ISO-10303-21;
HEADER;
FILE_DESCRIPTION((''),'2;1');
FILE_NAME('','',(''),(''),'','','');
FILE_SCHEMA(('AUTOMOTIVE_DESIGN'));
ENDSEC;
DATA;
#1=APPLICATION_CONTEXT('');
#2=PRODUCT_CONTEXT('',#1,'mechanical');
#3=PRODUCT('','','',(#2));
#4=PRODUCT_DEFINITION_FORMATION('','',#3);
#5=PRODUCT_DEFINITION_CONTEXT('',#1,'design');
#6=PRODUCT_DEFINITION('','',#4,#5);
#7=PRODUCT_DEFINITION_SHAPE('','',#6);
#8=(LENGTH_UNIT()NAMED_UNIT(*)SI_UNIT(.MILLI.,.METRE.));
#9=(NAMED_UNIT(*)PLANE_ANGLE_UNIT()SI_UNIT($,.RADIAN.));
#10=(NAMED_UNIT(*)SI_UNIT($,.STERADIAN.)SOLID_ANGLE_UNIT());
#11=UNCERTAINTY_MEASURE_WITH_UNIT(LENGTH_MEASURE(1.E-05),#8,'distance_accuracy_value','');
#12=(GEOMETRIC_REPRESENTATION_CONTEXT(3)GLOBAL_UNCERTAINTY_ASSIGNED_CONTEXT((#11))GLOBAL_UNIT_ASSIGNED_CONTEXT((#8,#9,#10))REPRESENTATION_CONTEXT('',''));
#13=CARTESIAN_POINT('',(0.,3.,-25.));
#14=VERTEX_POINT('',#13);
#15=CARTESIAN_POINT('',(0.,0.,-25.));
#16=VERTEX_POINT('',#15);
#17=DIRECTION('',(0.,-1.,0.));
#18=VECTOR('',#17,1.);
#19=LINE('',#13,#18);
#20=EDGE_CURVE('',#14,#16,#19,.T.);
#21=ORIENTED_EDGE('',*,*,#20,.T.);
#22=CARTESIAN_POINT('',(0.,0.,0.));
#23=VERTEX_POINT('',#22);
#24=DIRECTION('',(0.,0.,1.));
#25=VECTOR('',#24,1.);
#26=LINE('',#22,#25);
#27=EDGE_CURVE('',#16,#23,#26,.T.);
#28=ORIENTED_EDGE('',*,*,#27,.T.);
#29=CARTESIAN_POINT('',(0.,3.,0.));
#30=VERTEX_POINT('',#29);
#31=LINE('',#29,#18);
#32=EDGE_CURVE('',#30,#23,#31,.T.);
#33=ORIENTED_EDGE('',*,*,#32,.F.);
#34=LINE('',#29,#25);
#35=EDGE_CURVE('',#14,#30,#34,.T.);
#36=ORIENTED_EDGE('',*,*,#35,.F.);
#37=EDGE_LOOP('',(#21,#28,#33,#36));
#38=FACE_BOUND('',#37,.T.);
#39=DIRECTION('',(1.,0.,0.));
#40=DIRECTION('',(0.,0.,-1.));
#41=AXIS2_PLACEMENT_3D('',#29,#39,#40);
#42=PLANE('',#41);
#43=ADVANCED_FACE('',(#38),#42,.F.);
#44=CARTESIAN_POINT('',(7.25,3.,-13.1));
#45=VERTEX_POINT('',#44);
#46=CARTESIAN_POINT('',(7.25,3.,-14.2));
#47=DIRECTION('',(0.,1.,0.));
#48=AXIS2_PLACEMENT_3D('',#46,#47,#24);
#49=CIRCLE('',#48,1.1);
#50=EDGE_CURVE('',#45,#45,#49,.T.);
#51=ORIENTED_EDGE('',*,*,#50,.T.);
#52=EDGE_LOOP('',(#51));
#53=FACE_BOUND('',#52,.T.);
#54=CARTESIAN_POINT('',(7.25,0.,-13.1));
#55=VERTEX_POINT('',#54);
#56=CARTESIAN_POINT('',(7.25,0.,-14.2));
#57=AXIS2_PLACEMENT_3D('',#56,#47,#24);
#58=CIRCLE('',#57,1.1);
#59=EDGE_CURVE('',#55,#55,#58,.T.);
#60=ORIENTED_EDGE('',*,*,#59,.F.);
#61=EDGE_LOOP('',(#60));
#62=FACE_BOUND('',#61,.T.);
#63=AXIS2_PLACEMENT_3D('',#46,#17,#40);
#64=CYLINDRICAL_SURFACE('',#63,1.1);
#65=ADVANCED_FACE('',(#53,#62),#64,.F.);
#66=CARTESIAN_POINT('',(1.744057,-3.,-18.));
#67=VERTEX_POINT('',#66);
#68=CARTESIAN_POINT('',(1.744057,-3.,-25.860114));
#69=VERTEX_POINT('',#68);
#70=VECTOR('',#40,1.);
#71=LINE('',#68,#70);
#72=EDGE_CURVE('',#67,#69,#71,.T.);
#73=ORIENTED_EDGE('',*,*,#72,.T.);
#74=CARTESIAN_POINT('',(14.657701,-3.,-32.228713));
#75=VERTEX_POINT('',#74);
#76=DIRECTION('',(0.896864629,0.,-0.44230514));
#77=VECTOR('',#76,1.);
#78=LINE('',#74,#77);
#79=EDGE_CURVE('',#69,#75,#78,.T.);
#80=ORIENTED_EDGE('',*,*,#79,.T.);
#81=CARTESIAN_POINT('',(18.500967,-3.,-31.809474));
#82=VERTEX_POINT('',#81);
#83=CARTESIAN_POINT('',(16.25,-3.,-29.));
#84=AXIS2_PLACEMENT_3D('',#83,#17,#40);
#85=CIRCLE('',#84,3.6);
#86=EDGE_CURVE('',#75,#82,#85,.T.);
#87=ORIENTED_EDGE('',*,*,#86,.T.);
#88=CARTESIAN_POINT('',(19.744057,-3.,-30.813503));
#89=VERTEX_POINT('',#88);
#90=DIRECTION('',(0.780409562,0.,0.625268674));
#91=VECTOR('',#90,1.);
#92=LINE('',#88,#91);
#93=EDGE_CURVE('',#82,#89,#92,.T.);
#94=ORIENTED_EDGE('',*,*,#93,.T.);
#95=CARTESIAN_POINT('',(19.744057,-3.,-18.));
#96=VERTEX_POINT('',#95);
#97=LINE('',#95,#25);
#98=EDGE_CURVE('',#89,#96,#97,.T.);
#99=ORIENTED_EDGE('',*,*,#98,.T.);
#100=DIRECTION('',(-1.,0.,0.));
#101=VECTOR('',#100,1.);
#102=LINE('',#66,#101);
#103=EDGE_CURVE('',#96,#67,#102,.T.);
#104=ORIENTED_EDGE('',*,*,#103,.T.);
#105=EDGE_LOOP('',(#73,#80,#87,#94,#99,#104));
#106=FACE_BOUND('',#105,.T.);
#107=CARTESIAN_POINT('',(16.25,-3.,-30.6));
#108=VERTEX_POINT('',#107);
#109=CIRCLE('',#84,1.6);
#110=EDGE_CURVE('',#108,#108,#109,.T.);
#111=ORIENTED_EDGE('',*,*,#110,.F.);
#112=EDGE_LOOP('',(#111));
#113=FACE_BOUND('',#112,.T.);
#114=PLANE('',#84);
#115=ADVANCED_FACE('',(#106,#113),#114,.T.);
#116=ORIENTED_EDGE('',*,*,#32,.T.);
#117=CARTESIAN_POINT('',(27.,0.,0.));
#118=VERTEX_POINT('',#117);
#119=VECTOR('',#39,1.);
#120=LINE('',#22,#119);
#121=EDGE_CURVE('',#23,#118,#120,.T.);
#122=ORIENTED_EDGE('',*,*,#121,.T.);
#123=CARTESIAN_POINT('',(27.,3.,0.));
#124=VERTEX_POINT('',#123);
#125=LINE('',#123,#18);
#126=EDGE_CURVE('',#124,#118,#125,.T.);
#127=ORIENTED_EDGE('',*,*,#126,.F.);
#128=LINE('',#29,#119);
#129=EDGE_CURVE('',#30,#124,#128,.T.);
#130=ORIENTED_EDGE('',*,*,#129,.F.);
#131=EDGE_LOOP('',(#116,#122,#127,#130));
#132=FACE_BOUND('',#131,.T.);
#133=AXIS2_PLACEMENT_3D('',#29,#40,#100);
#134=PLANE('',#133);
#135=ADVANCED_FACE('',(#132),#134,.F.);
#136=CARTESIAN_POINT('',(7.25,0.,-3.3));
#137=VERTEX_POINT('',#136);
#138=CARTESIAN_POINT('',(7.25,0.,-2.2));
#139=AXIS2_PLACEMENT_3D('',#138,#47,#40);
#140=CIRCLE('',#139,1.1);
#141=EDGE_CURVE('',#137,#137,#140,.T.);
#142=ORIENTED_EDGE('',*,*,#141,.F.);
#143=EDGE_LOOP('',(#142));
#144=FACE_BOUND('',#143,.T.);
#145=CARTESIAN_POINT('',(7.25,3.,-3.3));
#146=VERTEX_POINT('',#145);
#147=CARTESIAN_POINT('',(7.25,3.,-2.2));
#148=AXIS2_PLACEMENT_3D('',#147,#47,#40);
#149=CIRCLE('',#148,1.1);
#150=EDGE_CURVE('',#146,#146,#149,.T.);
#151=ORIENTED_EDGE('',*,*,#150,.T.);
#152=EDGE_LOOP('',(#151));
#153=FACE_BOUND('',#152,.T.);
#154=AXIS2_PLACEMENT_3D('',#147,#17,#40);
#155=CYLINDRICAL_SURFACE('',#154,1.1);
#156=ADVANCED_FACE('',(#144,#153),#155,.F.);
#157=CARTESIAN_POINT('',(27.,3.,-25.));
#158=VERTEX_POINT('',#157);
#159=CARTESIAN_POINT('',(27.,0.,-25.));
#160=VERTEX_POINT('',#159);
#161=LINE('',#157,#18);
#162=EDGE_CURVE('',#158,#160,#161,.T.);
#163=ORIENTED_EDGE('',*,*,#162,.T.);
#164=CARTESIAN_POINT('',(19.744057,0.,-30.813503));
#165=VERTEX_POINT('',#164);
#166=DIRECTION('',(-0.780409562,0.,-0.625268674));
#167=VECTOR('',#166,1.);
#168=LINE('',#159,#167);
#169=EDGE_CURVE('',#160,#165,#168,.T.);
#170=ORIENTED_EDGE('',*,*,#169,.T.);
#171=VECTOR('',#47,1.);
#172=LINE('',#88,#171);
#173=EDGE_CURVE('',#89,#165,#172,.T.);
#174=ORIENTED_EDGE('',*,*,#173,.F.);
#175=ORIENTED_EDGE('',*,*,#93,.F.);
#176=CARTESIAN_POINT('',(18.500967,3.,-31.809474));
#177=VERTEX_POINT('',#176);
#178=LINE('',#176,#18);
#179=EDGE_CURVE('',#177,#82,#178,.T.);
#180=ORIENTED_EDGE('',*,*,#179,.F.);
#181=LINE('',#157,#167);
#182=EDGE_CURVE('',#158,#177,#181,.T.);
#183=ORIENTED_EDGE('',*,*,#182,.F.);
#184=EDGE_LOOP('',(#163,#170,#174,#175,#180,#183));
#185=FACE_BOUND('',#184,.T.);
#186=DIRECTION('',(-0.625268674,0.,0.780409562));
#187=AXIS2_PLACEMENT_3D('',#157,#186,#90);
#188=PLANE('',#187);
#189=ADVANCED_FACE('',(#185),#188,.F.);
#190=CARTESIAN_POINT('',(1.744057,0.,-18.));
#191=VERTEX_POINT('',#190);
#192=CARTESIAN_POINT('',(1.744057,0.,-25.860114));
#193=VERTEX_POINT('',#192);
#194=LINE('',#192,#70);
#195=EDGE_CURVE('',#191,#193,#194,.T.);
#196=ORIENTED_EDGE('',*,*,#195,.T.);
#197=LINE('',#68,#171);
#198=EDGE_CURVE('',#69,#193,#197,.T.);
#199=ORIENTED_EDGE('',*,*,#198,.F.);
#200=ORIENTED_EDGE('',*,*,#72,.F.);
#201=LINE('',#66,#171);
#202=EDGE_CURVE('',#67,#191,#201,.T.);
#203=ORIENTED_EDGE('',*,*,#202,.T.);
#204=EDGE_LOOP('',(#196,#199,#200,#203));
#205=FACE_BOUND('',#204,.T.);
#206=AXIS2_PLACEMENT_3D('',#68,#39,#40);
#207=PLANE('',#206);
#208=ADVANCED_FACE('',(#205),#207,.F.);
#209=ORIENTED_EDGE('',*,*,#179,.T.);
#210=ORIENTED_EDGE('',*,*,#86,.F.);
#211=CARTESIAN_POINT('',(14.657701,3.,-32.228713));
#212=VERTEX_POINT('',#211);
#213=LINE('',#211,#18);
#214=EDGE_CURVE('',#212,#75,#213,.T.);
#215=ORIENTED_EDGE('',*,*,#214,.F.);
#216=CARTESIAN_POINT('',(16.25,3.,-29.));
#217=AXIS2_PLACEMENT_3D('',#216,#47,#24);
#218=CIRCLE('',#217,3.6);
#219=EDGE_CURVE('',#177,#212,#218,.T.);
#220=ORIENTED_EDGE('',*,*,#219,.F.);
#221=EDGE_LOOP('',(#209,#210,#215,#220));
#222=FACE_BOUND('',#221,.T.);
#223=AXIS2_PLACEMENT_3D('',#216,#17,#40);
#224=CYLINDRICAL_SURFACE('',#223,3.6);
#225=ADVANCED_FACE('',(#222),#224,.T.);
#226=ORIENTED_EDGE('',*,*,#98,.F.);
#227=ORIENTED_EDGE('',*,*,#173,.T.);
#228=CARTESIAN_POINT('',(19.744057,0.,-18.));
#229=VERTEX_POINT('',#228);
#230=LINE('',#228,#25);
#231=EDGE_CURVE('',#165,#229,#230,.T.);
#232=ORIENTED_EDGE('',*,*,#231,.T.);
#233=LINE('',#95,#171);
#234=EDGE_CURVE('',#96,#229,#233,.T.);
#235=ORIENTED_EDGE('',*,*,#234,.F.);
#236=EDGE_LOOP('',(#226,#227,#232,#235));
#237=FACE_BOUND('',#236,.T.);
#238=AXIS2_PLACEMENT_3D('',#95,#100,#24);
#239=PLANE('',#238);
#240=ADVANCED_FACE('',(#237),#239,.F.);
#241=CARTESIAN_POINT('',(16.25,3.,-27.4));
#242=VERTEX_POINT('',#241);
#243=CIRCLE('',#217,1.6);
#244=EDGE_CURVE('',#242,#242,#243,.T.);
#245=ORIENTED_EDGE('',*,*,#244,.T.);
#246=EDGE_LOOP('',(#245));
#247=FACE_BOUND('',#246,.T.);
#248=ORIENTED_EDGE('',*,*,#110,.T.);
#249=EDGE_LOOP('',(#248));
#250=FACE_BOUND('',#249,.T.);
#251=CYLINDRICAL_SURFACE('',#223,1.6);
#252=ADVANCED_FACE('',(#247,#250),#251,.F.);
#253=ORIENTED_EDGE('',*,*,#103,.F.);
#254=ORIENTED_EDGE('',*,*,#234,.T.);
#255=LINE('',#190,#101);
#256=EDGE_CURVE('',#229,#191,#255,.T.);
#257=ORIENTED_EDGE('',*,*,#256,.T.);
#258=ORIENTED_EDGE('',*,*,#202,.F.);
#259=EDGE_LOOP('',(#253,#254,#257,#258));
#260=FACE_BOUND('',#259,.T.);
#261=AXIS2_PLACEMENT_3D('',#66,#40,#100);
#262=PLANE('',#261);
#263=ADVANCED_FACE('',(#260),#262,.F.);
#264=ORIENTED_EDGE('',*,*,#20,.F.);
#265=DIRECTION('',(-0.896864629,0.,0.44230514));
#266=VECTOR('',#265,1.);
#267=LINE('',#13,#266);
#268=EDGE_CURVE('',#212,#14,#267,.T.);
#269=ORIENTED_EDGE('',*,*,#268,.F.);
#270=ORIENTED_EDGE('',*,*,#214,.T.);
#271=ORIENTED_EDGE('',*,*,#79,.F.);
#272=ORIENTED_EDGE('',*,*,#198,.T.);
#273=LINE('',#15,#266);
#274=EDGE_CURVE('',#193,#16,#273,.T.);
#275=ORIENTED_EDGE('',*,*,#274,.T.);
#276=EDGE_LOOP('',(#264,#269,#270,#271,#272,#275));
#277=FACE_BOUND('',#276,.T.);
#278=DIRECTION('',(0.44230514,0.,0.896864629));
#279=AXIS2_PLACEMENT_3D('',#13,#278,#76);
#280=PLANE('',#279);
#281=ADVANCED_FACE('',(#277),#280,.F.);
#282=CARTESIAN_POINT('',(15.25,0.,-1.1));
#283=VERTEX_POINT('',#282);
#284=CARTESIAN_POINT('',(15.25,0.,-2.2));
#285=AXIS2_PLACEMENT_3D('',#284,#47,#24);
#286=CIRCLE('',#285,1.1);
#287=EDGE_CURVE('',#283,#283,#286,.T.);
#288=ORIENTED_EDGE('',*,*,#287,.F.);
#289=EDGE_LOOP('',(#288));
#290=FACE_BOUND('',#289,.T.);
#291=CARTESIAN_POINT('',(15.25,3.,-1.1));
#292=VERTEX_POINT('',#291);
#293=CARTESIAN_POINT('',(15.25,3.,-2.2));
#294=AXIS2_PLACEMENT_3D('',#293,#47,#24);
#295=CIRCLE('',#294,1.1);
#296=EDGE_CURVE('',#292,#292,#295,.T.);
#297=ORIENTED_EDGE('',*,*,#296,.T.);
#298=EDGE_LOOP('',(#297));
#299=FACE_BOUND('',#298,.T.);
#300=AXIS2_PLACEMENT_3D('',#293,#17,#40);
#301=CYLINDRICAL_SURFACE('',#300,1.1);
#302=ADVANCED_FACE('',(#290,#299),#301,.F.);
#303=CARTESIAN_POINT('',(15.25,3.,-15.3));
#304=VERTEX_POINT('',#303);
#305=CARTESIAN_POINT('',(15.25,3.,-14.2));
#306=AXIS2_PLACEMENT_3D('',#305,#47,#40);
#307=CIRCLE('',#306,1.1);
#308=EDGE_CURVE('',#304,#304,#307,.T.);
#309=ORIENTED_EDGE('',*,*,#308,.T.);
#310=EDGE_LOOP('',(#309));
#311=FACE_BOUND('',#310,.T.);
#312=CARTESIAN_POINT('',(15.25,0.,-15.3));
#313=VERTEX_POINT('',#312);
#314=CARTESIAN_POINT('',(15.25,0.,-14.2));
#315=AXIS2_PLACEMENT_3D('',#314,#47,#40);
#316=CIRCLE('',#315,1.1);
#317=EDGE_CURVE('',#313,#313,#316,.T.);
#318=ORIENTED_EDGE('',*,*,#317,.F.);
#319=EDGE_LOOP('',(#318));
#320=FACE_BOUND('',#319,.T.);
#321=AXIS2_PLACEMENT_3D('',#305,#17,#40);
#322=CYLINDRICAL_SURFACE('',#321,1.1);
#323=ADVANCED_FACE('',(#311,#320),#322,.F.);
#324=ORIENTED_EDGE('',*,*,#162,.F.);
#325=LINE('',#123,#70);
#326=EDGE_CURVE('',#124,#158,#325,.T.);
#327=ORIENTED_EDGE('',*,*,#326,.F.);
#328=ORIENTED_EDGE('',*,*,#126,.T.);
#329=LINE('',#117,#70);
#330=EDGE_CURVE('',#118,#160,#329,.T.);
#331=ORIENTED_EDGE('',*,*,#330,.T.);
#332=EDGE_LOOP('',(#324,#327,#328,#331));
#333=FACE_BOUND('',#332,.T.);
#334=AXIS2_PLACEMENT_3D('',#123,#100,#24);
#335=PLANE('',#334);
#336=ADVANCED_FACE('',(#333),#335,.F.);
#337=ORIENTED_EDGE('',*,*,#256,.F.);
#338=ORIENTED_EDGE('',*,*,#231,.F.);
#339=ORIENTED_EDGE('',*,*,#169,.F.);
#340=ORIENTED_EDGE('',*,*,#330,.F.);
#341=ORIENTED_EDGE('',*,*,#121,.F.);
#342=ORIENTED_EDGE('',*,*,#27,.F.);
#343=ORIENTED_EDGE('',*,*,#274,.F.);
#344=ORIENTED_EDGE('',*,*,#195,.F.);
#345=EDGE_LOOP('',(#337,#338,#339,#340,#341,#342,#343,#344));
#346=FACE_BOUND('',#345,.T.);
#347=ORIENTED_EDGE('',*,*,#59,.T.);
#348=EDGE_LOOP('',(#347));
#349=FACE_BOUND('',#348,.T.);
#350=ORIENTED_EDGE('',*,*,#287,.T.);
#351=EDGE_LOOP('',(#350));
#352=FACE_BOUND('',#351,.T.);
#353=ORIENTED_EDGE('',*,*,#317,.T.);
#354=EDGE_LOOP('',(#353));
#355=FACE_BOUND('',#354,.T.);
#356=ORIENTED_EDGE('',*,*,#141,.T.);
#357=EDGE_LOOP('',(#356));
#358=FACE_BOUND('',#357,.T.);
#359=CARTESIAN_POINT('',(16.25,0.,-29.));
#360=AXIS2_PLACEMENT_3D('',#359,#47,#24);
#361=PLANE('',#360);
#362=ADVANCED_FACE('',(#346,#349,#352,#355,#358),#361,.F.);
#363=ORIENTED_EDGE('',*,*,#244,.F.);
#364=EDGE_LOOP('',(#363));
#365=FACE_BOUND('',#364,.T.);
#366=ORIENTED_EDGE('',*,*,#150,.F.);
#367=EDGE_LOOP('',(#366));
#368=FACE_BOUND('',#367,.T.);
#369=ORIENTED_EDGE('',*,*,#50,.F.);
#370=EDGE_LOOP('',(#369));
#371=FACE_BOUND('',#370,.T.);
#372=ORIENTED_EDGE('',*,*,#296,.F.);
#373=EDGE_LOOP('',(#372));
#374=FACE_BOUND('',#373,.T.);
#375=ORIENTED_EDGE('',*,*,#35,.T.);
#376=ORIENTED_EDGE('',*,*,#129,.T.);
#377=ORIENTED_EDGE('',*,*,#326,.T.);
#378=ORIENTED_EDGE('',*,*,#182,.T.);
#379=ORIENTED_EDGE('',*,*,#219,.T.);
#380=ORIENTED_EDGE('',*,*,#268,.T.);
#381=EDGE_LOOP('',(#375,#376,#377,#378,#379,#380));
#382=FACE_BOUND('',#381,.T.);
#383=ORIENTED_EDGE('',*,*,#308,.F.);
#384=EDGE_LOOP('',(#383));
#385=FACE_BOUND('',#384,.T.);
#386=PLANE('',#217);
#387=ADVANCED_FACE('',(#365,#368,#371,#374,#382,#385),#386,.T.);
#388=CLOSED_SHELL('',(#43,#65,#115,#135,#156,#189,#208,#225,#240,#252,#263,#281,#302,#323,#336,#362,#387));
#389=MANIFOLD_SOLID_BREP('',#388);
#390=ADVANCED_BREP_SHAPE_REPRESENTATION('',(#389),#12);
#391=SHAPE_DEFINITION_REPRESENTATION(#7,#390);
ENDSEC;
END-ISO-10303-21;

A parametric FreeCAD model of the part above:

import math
import FreeCAD as App
import Part
import Sketcher
Q = App.Units.Quantity

doc = App.newDocument("Part")
body = doc.addObject("PartDesign::Body", "Body")

sketch1 = doc.addObject("Sketcher::SketchObject", "Sketch")
body.addObject(sketch1)
sketch1.AttachmentSupport = (doc.XZ_Plane, [""])
sketch1.MapMode = "FlatFace"
sketch1.addGeometry([
    Part.LineSegment(App.Vector(0, 0, 0), App.Vector(27, 0, 0)),
    Part.LineSegment(App.Vector(27, 0, 0), App.Vector(27, -25, 0)),
    Part.LineSegment(App.Vector(27, -25, 0), App.Vector(18.500967, -31.809474, 0)),
    Part.ArcOfCircle(Part.Circle(App.Vector(16.25, -29, 0), App.Vector(0, 0, 1), 3.6), math.radians(-116.251051), math.radians(-51.29809)),
    Part.LineSegment(App.Vector(14.657701, -32.228713, 0), App.Vector(0, -25, 0)),
    Part.LineSegment(App.Vector(0, -25, 0), App.Vector(0, 0, 0)),
    Part.Circle(App.Vector(7.25, -2.2, 0), App.Vector(0, 0, 1), 1.1),
    Part.Circle(App.Vector(7.25, -14.2, 0), App.Vector(0, 0, 1), 1.1),
    Part.Circle(App.Vector(15.25, -2.2, 0), App.Vector(0, 0, 1), 1.1),
    Part.Circle(App.Vector(15.25, -14.2, 0), App.Vector(0, 0, 1), 1.1),
    Part.Circle(App.Vector(16.25, -29, 0), App.Vector(0, 0, 1), 1.6),
], False)
sketch1.addConstraint([
    Sketcher.Constraint("Coincident", 0, 2, 1, 1),
    Sketcher.Constraint("Coincident", 1, 2, 2, 1),
    Sketcher.Constraint("Tangent", 2, 2, 3, 2),
    Sketcher.Constraint("Tangent", 3, 1, 4, 1),
    Sketcher.Constraint("Coincident", 4, 2, 5, 1),
    Sketcher.Constraint("Coincident", 5, 2, 0, 1),
    Sketcher.Constraint("Horizontal", 0),
    Sketcher.Constraint("Vertical", 1),
    Sketcher.Constraint("Vertical", 5),
    Sketcher.Constraint("Coincident", 5, 2, -1, 1),
    Sketcher.Constraint("Coincident", 10, 3, 3, 3),
    Sketcher.Constraint("Equal", 6, 7),
    Sketcher.Constraint("Equal", 7, 8),
    Sketcher.Constraint("Equal", 8, 9),
    Sketcher.Constraint("Horizontal", 6, 3, 8, 3),
    Sketcher.Constraint("Horizontal", 7, 3, 9, 3),
    Sketcher.Constraint("Horizontal", 1, 2, 4, 2),
    Sketcher.Constraint("Vertical", 6, 3, 7, 3),
    Sketcher.Constraint("Vertical", 8, 3, 9, 3),
    Sketcher.Constraint("Diameter", 6, Q("2.2 mm")),
    Sketcher.Constraint("Diameter", 10, Q("3.2 mm")),
    Sketcher.Constraint("Radius", 3, Q("3.6 mm")),
    Sketcher.Constraint("DistanceX", 0, 1, 0, 2, Q("27 mm")),
    Sketcher.Constraint("DistanceY", 1, 2, 1, 1, Q("25 mm")),
    Sketcher.Constraint("DistanceY", 3, 3, -1, 1, Q("29 mm")),
    Sketcher.Constraint("DistanceX", 6, 3, 3, 3, Q("9 mm")),
    Sketcher.Constraint("DistanceY", 7, 3, 6, 3, Q("12 mm")),
    Sketcher.Constraint("DistanceX", 6, 3, 8, 3, Q("8 mm")),
    Sketcher.Constraint("DistanceY", 6, 3, -1, 1, Q("2.2 mm")),
    Sketcher.Constraint("DistanceX", -1, 1, 3, 3, Q("16.25 mm")),
])
pad1 = doc.addObject("PartDesign::Pad", "Pad")
body.addObject(pad1)
pad1.Profile = sketch1
pad1.Length = 3
pad1.Reversed = True

sketch2 = doc.addObject("Sketcher::SketchObject", "Sketch001")
body.addObject(sketch2)
sketch2.AttachmentSupport = (doc.XZ_Plane, [""])
sketch2.MapMode = "FlatFace"
sketch2.AttachmentOffset = App.Placement(App.Vector(0, 0, 3), App.Rotation())
sketch2.addGeometry([
    Part.LineSegment(App.Vector(18.500967, -31.809474, 0), App.Vector(19.744057, -30.813503, 0)),
    Part.LineSegment(App.Vector(19.744057, -30.813503, 0), App.Vector(19.744057, -18, 0)),
    Part.LineSegment(App.Vector(19.744057, -18, 0), App.Vector(1.744057, -18, 0)),
    Part.LineSegment(App.Vector(1.744057, -18, 0), App.Vector(1.744057, -25.860114, 0)),
    Part.LineSegment(App.Vector(1.744057, -25.860114, 0), App.Vector(14.657701, -32.228713, 0)),
    Part.ArcOfCircle(Part.Circle(App.Vector(16.25, -29, 0), App.Vector(0, 0, 1), 3.6), math.radians(-116.251051), math.radians(-51.29809)),
    Part.Circle(App.Vector(16.25, -29, 0), App.Vector(0, 0, 1), 1.6),
], False)
sketch2.addConstraint([
    Sketcher.Constraint("Coincident", 0, 2, 1, 1),
    Sketcher.Constraint("Coincident", 1, 2, 2, 1),
    Sketcher.Constraint("Coincident", 2, 2, 3, 1),
    Sketcher.Constraint("Coincident", 3, 2, 4, 1),
    Sketcher.Constraint("Tangent", 4, 2, 5, 1),
    Sketcher.Constraint("Tangent", 5, 2, 0, 1),
    Sketcher.Constraint("Vertical", 1),
    Sketcher.Constraint("Horizontal", 2),
    Sketcher.Constraint("Vertical", 3),
    Sketcher.Constraint("Coincident", 6, 3, 5, 3),
    Sketcher.Constraint("Diameter", 6, Q("3.2 mm")),
    Sketcher.Constraint("Radius", 5, Q("3.6 mm")),
    Sketcher.Constraint("DistanceX", 2, 2, 2, 1, Q("18 mm")),
    Sketcher.Constraint("DistanceY", 5, 3, -1, 1, Q("29 mm")),
    Sketcher.Constraint("DistanceY", 1, 2, -1, 1, Q("18 mm")),
    Sketcher.Constraint("DistanceX", -1, 1, 5, 3, Q("16.25 mm")),
    Sketcher.Constraint("DistanceX", -1, 1, 4, 2, Q("14.657701 mm")),
    Sketcher.Constraint("DistanceY", 4, 2, 3, 2, Q("6.368599 mm")),
    Sketcher.Constraint("Distance", 0, Q("1.592869 mm")),
])
pad2 = doc.addObject("PartDesign::Pad", "Pad001")
body.addObject(pad2)
pad2.Profile = sketch2
pad2.Length = 3
pad2.Reversed = True

doc.recompute()
